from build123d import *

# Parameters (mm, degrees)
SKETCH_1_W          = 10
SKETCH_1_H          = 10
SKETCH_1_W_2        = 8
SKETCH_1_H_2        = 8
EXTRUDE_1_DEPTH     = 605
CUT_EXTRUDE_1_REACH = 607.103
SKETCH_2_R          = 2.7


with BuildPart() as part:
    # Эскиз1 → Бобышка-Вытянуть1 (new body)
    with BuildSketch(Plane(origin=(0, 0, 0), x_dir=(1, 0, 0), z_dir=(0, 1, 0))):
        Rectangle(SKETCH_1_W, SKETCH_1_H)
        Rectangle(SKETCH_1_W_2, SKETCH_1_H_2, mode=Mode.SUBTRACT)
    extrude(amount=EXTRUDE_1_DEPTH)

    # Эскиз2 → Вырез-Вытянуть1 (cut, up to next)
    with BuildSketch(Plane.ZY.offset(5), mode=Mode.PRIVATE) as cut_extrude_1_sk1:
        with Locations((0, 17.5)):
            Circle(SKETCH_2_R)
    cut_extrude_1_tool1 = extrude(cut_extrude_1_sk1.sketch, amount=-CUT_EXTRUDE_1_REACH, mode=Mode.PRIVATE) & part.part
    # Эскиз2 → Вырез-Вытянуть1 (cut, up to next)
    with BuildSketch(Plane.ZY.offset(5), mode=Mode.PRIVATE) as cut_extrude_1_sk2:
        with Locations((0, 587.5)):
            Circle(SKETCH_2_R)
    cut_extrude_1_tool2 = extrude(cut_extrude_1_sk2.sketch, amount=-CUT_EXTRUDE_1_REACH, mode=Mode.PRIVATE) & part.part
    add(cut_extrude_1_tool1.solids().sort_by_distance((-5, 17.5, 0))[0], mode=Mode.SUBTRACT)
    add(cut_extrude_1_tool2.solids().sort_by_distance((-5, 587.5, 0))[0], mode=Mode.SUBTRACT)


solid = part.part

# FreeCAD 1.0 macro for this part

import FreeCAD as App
import Part
import Sketcher

V = App.Vector


def add_polygon(sketch, points):
    """Adds a closed chain of lines whose ends are joined by coincident constraints."""
    first, n = sketch.GeometryCount, len(points)
    for a, b in zip(points, points[1:] + points[:1]):
        sketch.addGeometry(Part.LineSegment(App.Vector(*a, 0), App.Vector(*b, 0)), False)
    for i in range(n):
        sketch.addConstraint(Sketcher.Constraint("Coincident", first + i, 2, first + (i + 1) % n, 1))

doc = App.newDocument("Part")
body = doc.addObject("PartDesign::Body", "Body")

# Sketch on XZ plane
sketch1 = body.newObject("Sketcher::SketchObject", "Sketch")
sketch1.AttachmentSupport = (doc.getObject("XZ_Plane"), [""])
sketch1.MapMode = "FlatFace"
add_polygon(sketch1, [(-5, -5), (-5, 5), (5, 5), (5, -5)])  # lines 0-3
add_polygon(sketch1, [(4, 4), (-4, 4), (-4, -4), (4, -4)])  # lines 4-7
sketch1.addConstraint([
    Sketcher.Constraint("Vertical", 0),
    Sketcher.Constraint("Horizontal", 1),
    Sketcher.Constraint("Vertical", 2),
    Sketcher.Constraint("Horizontal", 3),
    Sketcher.Constraint("Horizontal", 4),
    Sketcher.Constraint("Vertical", 5),
    Sketcher.Constraint("Horizontal", 6),
    Sketcher.Constraint("Vertical", 7),
    Sketcher.Constraint("Symmetric", 0, 2, 2, 2, -1, 1),
    Sketcher.Constraint("Symmetric", 4, 2, 6, 2, -1, 1),
    Sketcher.Constraint("Equal", 3, 0),
    Sketcher.Constraint("Equal", 6, 5),
    Sketcher.Constraint("DistanceX", 1, 1, 1, 2, 10.0),
    Sketcher.Constraint("DistanceX", 4, 2, 4, 1, 8.0),
])
pad1 = body.newObject("PartDesign::Pad", "Pad")
pad1.Profile = sketch1
pad1.Length = 605
pad1.Reversed = True

# Sketch on YZ plane
sketch2 = body.newObject("Sketcher::SketchObject", "Sketch001")
sketch2.AttachmentSupport = (doc.getObject("YZ_Plane"), [""])
sketch2.MapMode = "FlatFace"
sketch2.AttachmentOffset = App.Placement(V(0, 0, -5), App.Rotation())
sketch2.addGeometry(Part.Circle(V(17.5, 0, 0), V(0, 0, 1), 2.7), False)
sketch2.addConstraint([
    Sketcher.Constraint("PointOnObject", 0, 3, -1),
    Sketcher.Constraint("Diameter", 0, 5.4),
    Sketcher.Constraint("DistanceX", -1, 1, 0, 3, 17.5),
])
pocket1 = body.newObject("PartDesign::Pocket", "Pocket")
pocket1.Profile = sketch2
pocket1.Type = "UpToFirst"
pocket1.Reversed = True

# Sketch on YZ plane
sketch3 = body.newObject("Sketcher::SketchObject", "Sketch002")
sketch3.AttachmentSupport = (doc.getObject("YZ_Plane"), [""])
sketch3.MapMode = "FlatFace"
sketch3.AttachmentOffset = App.Placement(V(0, 0, -5), App.Rotation())
sketch3.addGeometry(Part.Circle(V(587.5, 0, 0), V(0, 0, 1), 2.7), False)
sketch3.addConstraint([
    Sketcher.Constraint("PointOnObject", 0, 3, -1),
    Sketcher.Constraint("Diameter", 0, 5.4),
    Sketcher.Constraint("DistanceX", -1, 1, 0, 3, 587.5),
])
pocket2 = body.newObject("PartDesign::Pocket", "Pocket001")
pocket2.Profile = sketch3
pocket2.Type = "UpToFirst"
pocket2.Reversed = True

doc.recompute()
